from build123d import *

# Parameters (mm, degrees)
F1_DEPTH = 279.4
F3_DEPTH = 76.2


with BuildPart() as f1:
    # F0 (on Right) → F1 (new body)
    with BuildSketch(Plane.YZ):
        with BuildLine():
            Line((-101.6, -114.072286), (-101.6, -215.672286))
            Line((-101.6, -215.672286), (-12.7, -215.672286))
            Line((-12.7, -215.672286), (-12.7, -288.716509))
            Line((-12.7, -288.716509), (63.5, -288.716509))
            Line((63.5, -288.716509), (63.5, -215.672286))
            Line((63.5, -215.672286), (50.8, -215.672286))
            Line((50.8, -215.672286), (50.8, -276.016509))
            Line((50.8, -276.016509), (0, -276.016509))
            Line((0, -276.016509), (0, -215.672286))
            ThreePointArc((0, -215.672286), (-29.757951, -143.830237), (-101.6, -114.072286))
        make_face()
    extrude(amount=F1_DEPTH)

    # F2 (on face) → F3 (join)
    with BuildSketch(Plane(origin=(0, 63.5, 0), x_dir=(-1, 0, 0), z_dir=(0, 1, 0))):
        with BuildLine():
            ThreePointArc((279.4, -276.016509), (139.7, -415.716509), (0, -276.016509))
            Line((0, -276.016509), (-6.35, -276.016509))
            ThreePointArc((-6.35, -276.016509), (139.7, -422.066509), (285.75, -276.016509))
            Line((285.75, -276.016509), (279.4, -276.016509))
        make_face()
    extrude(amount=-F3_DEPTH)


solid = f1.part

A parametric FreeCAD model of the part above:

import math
import FreeCAD as App
import Part
import Sketcher

V = App.Vector
Q = App.Units.Quantity

doc = App.newDocument("Part")
body = doc.addObject("PartDesign::Body", "Body")

sketch1 = body.newObject("Sketcher::SketchObject", "Sketch")
sketch1.AttachmentSupport = (doc.getObject("YZ_Plane"), [""])
sketch1.MapMode = "FlatFace"
sketch1.addGeometry([
    Part.LineSegment(V(-102, -114, 0), V(-102, -216, 0)),
    Part.LineSegment(V(-102, -216, 0), V(-13, -216, 0)),
    Part.LineSegment(V(-13, -216, 0), V(-13, -289, 0)),
    Part.LineSegment(V(-13, -289, 0), V(64, -289, 0)),
    Part.LineSegment(V(64, -289, 0), V(64, -216, 0)),
    Part.LineSegment(V(64, -216, 0), V(51, -216, 0)),
    Part.LineSegment(V(51, -216, 0), V(51, -276, 0)),
    Part.LineSegment(V(51, -276, 0), V(0, -276, 0)),
    Part.LineSegment(V(0, -276, 0), V(0, -216, 0)),
    Part.ArcOfCircle(Part.Circle(V(-102, -216, 0), V(0, 0, 1), 102), math.radians(0), math.radians(90)),
], False)
sketch1.addConstraint([
    Sketcher.Constraint("Coincident", 0, 2, 1, 1),
    Sketcher.Constraint("Coincident", 1, 2, 2, 1),
    Sketcher.Constraint("Coincident", 2, 2, 3, 1),
    Sketcher.Constraint("Coincident", 3, 2, 4, 1),
    Sketcher.Constraint("Coincident", 4, 2, 5, 1),
    Sketcher.Constraint("Coincident", 5, 2, 6, 1),
    Sketcher.Constraint("Coincident", 6, 2, 7, 1),
    Sketcher.Constraint("Coincident", 7, 2, 8, 1),
    Sketcher.Constraint("Tangent", 8, 2, 9, 1),
    Sketcher.Constraint("Coincident", 9, 2, 0, 1),
    Sketcher.Constraint("Vertical", 0),
    Sketcher.Constraint("Horizontal", 1),
    Sketcher.Constraint("Vertical", 2),
    Sketcher.Constraint("Horizontal", 3),
    Sketcher.Constraint("Vertical", 4),
    Sketcher.Constraint("Horizontal", 5),
    Sketcher.Constraint("Vertical", 6),
    Sketcher.Constraint("Horizontal", 7),
    Sketcher.Constraint("Vertical", 8),
    Sketcher.Constraint("Coincident", 0, 2, 9, 3),
    Sketcher.Constraint("PointOnObject", 7, 2, -2),
    Sketcher.Constraint("Horizontal", 1, 2, 4, 2),
    Sketcher.Constraint("Radius", 9, Q("4 in")),
    Sketcher.Constraint("DistanceX", 3, 1, 3, 2, Q("3 in")),
    Sketcher.Constraint("DistanceX", 7, 2, 7, 1, Q("2 in")),
    Sketcher.Constraint("DistanceX", 1, 1, 1, 2, Q("3.5 in")),
    Sketcher.Constraint("DistanceY", 3, 2, 6, 2, Q("0.5 in")),
    Sketcher.Constraint("DistanceY", 2, 2, 2, 1, 73.044223),
    Sketcher.Constraint("DistanceY", 2, 2, -1, 1, 288.716509),
])
pad1 = body.newObject("PartDesign::Pad", "Pad")
pad1.Profile = sketch1
pad1.Length = Q("11 in")

sketch2 = body.newObject("Sketcher::SketchObject", "Sketch001")
sketch2.AttachmentSupport = (doc.getObject("XZ_Plane"), [""])
sketch2.MapMode = "FlatFace"
sketch2.AttachmentOffset = App.Placement(V(0, 0, -2.5 * 25.4), App.Rotation())
sketch2.addGeometry([
    Part.ArcOfCircle(Part.Circle(V(-140, -276, 0), V(0, 0, 1), 140), math.radians(180), math.radians(360)),
    Part.LineSegment(V(0, -276, 0), V(6, -276, 0)),
    Part.ArcOfCircle(Part.Circle(V(-140, -276, 0), V(0, 0, 1), 146), math.radians(180), math.radians(360)),
    Part.LineSegment(V(-286, -276, 0), V(-279, -276, 0)),
], False)
sketch2.addConstraint([
    Sketcher.Constraint("Coincident", 0, 2, 1, 1),
    Sketcher.Constraint("Coincident", 1, 2, 2, 2),
    Sketcher.Constraint("Coincident", 2, 1, 3, 1),
    Sketcher.Constraint("Coincident", 3, 2, 0, 1),
    Sketcher.Constraint("Horizontal", 1),
    Sketcher.Constraint("Horizontal", 3),
    Sketcher.Constraint("Coincident", 2, 3, 0, 3),
    Sketcher.Constraint("PointOnObject", 0, 2, -2),
    Sketcher.Constraint("Horizontal", 2, 3, 0, 2),
    Sketcher.Constraint("Horizontal", 1, 2, 2, 1),
    Sketcher.Constraint("Radius", 0, Q("5.5 in")),
    Sketcher.Constraint("Radius", 2, Q("5.75 in")),
    Sketcher.Constraint("DistanceY", 0, 3, -1, 1, 276.016509),
])
pad2 = body.newObject("PartDesign::Pad", "Pad001")
pad2.Profile = sketch2
pad2.Length = Q("3 in")

doc.recompute()
